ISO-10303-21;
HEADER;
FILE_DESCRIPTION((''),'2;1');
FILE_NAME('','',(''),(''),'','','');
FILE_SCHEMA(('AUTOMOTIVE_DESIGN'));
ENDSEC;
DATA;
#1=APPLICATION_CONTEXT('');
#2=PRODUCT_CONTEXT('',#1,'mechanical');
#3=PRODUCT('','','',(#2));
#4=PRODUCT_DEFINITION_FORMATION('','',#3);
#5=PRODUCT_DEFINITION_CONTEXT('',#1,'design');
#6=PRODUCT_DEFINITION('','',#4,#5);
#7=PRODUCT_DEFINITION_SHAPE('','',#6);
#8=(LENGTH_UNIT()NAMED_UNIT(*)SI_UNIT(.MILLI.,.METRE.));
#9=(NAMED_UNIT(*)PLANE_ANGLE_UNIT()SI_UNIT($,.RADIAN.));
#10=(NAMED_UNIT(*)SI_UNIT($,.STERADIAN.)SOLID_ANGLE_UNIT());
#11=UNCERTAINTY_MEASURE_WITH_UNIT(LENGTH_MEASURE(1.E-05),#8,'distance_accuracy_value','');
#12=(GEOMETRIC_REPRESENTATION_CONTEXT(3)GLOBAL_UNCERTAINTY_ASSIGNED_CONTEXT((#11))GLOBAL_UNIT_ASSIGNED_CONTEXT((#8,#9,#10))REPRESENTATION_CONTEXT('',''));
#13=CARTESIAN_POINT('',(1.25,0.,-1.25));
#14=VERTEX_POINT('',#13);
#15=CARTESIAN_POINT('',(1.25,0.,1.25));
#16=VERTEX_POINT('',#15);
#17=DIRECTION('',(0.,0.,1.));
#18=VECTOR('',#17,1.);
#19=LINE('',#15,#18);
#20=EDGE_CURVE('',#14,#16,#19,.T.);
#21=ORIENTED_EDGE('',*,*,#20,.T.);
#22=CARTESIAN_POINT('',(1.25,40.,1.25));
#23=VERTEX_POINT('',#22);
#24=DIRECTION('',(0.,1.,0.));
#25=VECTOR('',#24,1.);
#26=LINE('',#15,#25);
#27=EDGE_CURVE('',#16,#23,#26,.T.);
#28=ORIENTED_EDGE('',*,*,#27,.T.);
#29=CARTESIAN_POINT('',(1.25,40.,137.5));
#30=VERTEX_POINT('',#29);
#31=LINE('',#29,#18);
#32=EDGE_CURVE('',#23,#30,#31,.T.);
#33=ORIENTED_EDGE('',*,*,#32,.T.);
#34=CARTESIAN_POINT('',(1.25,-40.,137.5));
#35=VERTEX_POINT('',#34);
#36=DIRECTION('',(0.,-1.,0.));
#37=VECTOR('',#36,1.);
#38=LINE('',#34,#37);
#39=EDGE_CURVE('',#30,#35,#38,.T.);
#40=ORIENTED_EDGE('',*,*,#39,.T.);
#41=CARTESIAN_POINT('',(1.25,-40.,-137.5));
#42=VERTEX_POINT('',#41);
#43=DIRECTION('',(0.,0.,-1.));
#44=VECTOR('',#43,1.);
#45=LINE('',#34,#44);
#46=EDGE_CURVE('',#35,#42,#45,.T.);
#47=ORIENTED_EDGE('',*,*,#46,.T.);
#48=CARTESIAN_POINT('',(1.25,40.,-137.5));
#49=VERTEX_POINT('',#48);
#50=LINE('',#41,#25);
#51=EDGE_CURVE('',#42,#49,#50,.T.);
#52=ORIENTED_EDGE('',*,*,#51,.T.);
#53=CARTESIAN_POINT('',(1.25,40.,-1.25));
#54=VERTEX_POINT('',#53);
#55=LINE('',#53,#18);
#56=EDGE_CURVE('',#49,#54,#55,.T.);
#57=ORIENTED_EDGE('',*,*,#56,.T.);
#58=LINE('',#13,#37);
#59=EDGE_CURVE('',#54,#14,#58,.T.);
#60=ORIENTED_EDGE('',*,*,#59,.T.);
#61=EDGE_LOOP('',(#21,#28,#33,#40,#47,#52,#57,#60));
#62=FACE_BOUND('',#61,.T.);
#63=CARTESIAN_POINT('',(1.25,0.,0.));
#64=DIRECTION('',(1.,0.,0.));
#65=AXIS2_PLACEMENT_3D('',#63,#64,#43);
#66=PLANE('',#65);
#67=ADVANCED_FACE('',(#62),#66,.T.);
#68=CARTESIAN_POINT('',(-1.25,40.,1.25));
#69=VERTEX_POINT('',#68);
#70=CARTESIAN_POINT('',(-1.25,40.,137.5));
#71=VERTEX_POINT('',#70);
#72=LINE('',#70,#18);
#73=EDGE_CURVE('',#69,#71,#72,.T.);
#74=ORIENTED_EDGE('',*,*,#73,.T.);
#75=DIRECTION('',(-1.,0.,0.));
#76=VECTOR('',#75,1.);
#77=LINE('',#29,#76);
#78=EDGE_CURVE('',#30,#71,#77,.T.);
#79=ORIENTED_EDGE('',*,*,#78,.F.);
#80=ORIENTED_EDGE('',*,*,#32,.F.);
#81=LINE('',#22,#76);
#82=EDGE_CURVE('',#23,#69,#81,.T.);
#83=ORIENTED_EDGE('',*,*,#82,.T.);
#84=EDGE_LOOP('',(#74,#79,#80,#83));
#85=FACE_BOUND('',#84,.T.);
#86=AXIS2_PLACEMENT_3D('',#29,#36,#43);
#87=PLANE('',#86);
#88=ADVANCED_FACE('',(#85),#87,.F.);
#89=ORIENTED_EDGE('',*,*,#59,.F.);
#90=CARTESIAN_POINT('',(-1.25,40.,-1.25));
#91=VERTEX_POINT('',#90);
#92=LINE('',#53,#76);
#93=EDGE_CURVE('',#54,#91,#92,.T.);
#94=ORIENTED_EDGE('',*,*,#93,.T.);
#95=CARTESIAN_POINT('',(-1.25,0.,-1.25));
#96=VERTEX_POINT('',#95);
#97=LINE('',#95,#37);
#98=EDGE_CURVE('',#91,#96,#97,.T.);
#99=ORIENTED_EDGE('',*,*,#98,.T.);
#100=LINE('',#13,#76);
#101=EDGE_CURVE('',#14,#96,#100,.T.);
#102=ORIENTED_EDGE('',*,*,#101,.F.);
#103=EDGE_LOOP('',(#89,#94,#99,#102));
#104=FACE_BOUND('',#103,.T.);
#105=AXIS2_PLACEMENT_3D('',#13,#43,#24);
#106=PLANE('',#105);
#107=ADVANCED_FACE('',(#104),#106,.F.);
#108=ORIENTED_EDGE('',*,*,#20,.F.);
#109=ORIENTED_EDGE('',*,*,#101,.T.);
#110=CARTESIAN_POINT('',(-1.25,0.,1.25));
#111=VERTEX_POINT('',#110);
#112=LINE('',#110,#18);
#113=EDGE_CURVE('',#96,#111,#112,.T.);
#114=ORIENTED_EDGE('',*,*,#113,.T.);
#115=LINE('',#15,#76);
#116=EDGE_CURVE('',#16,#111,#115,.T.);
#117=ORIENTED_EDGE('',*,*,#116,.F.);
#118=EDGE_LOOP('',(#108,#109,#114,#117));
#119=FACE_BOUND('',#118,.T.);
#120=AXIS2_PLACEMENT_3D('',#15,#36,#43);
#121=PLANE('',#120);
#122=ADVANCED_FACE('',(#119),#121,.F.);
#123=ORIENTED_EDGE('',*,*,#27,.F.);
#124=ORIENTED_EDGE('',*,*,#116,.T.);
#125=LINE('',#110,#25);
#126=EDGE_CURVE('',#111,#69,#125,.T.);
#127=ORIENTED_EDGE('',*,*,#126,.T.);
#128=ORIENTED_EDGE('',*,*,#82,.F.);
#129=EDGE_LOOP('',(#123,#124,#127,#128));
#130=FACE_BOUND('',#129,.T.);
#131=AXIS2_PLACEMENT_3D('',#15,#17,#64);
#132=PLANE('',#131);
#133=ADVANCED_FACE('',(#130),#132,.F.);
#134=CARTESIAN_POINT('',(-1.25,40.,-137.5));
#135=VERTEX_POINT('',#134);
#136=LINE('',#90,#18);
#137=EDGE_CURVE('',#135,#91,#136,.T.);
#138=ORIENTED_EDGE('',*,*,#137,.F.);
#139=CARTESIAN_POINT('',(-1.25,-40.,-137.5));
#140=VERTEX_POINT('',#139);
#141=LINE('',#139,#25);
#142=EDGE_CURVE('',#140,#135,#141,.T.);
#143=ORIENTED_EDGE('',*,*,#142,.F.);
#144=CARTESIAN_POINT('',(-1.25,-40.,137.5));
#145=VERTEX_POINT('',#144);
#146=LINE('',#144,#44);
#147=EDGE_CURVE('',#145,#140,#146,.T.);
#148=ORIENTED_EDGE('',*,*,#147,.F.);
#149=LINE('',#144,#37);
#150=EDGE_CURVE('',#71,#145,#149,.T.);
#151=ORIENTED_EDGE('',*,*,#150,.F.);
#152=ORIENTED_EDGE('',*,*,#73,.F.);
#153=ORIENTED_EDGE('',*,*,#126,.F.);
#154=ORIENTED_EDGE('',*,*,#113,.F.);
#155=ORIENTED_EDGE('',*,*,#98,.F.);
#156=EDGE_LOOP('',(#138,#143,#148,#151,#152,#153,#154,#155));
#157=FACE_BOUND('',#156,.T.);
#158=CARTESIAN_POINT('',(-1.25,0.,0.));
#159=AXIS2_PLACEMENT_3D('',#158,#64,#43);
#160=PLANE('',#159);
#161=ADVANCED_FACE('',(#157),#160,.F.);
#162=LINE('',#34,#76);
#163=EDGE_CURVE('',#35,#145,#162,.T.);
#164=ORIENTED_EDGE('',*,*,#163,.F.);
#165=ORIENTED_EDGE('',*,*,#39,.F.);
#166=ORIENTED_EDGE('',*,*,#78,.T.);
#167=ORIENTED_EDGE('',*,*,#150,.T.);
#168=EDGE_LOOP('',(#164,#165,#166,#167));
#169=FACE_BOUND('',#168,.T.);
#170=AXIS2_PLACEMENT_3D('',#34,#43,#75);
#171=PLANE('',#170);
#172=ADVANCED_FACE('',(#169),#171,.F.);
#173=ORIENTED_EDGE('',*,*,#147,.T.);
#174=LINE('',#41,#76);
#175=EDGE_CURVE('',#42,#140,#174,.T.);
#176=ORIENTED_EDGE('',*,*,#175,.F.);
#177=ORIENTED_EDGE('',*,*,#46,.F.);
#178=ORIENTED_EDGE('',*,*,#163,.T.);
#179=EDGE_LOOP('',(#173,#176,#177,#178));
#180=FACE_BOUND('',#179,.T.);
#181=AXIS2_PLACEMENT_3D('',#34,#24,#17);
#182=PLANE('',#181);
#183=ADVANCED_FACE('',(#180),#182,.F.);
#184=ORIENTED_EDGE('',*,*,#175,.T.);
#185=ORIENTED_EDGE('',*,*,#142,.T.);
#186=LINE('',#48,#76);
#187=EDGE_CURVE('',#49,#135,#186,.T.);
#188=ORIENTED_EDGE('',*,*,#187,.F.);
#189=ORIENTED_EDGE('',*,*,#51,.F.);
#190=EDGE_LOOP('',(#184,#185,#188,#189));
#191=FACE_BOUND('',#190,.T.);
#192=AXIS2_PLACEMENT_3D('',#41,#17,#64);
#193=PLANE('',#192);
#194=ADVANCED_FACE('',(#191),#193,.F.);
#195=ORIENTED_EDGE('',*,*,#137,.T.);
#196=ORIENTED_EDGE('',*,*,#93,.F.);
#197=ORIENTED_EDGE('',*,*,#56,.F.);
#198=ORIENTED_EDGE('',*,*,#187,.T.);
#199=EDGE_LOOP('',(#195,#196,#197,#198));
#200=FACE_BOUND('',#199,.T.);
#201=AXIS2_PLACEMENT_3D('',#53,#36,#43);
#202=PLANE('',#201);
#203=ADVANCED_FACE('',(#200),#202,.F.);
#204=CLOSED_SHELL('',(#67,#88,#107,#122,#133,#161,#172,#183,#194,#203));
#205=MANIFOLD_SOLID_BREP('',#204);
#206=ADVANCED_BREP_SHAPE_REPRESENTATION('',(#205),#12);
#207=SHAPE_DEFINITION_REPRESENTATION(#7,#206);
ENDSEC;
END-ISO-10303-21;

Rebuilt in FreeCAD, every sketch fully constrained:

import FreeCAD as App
import Part
import Sketcher

V = App.Vector

doc = App.newDocument("Part")
body = doc.addObject("PartDesign::Body", "Body")

sketch1 = body.newObject("Sketcher::SketchObject", "Sketch")
sketch1.AttachmentSupport = (doc.getObject("YZ_Plane"), [""])
sketch1.MapMode = "FlatFace"
sketch1.addGeometry([
    Part.LineSegment(V(-40, 137.5, 0), V(-40, -137.5, 0)),
    Part.LineSegment(V(-40, -137.5, 0), V(40, -137.5, 0)),
    Part.LineSegment(V(40, -137.5, 0), V(40, -1.25, 0)),
    Part.LineSegment(V(40, -1.25, 0), V(0, -1.25, 0)),
    Part.LineSegment(V(0, -1.25, 0), V(0, 1.25, 0)),
    Part.LineSegment(V(0, 1.25, 0), V(40, 1.25, 0)),
    Part.LineSegment(V(40, 1.25, 0), V(40, 137.5, 0)),
    Part.LineSegment(V(40, 137.5, 0), V(-40, 137.5, 0)),
], False)
sketch1.addConstraint([
    Sketcher.Constraint("Coincident", 0, 2, 1, 1),
    Sketcher.Constraint("Coincident", 1, 2, 2, 1),
    Sketcher.Constraint("Coincident", 2, 2, 3, 1),
    Sketcher.Constraint("Coincident", 3, 2, 4, 1),
    Sketcher.Constraint("Coincident", 4, 2, 5, 1),
    Sketcher.Constraint("Coincident", 5, 2, 6, 1),
    Sketcher.Constraint("Coincident", 6, 2, 7, 1),
    Sketcher.Constraint("Coincident", 7, 2, 0, 1),
    Sketcher.Constraint("Vertical", 0),
    Sketcher.Constraint("Horizontal", 1),
    Sketcher.Constraint("Vertical", 2),
    Sketcher.Constraint("Horizontal", 3),
    Sketcher.Constraint("Vertical", 4),
    Sketcher.Constraint("Horizontal", 5),
    Sketcher.Constraint("Vertical", 6),
    Sketcher.Constraint("Horizontal", 7),
    Sketcher.Constraint("Symmetric", 3, 2, 4, 2, -1, 1),
    Sketcher.Constraint("Symmetric", 0, 2, 6, 2, -1, 1),
    Sketcher.Constraint("Vertical", 2, 2, 5, 2),
    Sketcher.Constraint("DistanceX", 1, 1, 1, 2, 80.0),
    Sketcher.Constraint("DistanceY", 0, 2, 0, 1, 275.0),
    Sketcher.Constraint("DistanceY", 4, 1, 4, 2, 2.5),
])
pad1 = body.newObject("PartDesign::Pad", "Pad")
pad1.Profile = sketch1
pad1.Length = 2.5
pad1.Midplane = True

doc.recompute()
